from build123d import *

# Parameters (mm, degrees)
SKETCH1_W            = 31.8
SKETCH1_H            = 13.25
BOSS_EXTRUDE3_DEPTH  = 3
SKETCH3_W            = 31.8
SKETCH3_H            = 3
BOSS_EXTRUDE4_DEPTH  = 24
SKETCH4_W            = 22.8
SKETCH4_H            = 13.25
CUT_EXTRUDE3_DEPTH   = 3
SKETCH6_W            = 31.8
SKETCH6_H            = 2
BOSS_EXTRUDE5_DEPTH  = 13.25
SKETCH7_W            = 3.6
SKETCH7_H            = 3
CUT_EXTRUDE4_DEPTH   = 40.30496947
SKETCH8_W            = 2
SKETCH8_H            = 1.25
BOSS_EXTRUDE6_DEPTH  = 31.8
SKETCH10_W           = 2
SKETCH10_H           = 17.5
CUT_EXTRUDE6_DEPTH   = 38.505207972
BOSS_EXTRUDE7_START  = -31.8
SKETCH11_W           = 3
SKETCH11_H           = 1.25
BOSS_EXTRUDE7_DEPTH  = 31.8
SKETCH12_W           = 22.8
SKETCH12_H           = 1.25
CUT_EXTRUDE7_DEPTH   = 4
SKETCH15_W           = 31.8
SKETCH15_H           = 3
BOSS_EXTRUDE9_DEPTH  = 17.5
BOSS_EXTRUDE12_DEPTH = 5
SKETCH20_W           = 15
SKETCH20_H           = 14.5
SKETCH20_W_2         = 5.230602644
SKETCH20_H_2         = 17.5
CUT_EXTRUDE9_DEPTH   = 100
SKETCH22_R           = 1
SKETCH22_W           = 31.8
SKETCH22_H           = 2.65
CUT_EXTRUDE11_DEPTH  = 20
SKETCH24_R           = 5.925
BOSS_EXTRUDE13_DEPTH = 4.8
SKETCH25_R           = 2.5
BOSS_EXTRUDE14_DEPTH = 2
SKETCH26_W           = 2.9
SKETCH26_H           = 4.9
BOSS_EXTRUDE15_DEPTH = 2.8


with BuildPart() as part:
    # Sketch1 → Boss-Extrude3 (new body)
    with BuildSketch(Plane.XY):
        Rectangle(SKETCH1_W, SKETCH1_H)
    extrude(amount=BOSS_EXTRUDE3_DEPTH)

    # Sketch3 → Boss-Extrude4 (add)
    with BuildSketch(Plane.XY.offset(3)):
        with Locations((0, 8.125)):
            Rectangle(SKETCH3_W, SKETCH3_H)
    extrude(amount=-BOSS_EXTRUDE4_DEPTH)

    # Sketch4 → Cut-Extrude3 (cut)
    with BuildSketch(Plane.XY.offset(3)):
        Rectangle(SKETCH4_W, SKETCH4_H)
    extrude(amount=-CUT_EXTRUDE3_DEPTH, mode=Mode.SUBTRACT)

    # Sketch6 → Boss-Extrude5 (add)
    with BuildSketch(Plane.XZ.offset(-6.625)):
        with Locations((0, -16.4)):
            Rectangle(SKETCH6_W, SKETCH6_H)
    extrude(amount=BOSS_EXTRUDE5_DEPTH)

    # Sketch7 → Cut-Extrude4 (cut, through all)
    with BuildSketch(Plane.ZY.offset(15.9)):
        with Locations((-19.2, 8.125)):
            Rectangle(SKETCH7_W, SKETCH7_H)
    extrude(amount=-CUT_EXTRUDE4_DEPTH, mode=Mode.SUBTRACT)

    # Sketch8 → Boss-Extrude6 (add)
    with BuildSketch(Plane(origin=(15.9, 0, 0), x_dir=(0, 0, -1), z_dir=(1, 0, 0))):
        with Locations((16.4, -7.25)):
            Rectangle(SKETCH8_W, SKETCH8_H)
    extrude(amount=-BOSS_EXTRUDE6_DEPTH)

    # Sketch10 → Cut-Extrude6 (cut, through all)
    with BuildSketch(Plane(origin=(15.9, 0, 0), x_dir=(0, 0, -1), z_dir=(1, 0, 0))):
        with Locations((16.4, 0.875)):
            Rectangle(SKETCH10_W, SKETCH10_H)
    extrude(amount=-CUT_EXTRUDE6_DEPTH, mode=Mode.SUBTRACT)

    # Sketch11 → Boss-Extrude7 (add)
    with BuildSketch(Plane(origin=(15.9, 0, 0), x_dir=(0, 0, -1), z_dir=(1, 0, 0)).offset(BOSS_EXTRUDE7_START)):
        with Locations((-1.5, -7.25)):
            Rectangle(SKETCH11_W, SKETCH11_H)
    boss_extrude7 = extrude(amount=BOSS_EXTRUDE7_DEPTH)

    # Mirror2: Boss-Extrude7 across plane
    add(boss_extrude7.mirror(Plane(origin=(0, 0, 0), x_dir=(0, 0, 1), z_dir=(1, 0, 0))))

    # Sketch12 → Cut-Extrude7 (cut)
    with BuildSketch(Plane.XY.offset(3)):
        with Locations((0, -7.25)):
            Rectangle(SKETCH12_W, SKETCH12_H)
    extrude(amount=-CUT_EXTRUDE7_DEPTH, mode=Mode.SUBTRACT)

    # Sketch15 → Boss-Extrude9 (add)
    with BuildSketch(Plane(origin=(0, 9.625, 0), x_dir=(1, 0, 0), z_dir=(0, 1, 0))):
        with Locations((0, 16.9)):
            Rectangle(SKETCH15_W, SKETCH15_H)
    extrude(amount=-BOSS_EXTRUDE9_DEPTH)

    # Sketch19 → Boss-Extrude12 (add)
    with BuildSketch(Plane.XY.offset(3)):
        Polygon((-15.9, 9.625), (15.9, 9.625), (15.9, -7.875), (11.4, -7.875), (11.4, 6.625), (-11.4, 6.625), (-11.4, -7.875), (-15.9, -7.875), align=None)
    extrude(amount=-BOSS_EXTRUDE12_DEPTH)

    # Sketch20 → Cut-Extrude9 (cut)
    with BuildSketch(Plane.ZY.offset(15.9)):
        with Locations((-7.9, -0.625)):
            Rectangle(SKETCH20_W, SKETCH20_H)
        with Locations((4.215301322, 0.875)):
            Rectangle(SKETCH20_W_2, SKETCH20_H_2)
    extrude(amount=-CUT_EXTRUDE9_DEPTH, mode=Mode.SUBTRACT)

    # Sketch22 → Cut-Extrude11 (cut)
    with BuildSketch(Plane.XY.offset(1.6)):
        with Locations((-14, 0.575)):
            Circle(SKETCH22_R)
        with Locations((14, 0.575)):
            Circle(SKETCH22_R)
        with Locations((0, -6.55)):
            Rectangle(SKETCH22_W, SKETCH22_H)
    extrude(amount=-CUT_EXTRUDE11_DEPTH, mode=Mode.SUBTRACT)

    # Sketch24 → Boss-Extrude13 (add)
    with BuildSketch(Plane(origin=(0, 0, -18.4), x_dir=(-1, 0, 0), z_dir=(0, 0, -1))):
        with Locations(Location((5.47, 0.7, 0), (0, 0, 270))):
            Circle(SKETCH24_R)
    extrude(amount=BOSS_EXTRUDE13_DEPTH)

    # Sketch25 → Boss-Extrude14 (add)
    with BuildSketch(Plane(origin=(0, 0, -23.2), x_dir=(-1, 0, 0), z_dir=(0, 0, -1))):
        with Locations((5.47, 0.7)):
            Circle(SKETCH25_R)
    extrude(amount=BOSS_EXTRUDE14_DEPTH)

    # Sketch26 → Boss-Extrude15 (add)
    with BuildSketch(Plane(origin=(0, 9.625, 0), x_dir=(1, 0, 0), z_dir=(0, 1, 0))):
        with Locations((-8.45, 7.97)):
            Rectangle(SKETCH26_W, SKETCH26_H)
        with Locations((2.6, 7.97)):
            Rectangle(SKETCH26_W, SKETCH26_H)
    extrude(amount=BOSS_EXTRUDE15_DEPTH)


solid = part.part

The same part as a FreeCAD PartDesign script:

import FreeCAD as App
import Part
import Sketcher


def add_polygon(sketch, points):
    """Adds a closed chain of lines whose ends are joined by coincident constraints."""
    first, n = sketch.GeometryCount, len(points)
    for a, b in zip(points, points[1:] + points[:1]):
        sketch.addGeometry(Part.LineSegment(App.Vector(*a, 0), App.Vector(*b, 0)), False)
    for i in range(n):
        sketch.addConstraint(Sketcher.Constraint("Coincident", first + i, 2, first + (i + 1) % n, 1))

doc = App.newDocument("Part")
body = doc.addObject("PartDesign::Body", "Body")

sketch1 = body.newObject("Sketcher::SketchObject", "Sketch")
sketch1.AttachmentSupport = (doc.getObject("XY_Plane"), [""])
sketch1.MapMode = "FlatFace"
add_polygon(sketch1, [(-16, 7), (-16, -7), (16, -7), (16, 7)])
sketch1.addConstraint([
    Sketcher.Constraint("Vertical", 0),
    Sketcher.Constraint("Horizontal", 1),
    Sketcher.Constraint("Vertical", 2),
    Sketcher.Constraint("Horizontal", 3),
    Sketcher.Constraint("Symmetric", 0, 2, 2, 2, -1, 1),
    Sketcher.Constraint("DistanceX", 1, 1, 1, 2, 31.8),
    Sketcher.Constraint("DistanceY", 0, 2, 0, 1, 13.25),
])
pad1 = body.newObject("PartDesign::Pad", "Pad")
pad1.Profile = sketch1
pad1.Length = 3

sketch2 = body.newObject("Sketcher::SketchObject", "Sketch001")
sketch2.AttachmentSupport = (doc.getObject("XY_Plane"), [""])
sketch2.MapMode = "FlatFace"
sketch2.AttachmentOffset = App.Placement(App.Vector(0, 0, 3), App.Rotation())
add_polygon(sketch2, [(-15.9, 9.6), (-15.9, 6.6), (15.9, 6.6), (15.9, 9.6)])
sketch2.addConstraint([
    Sketcher.Constraint("Vertical", 0),
    Sketcher.Constraint("Horizontal", 1),
    Sketcher.Constraint("Vertical", 2),
    Sketcher.Constraint("Horizontal", 3),
    Sketcher.Constraint("DistanceY", 0, 2, 0, 1, 3.0),
    Sketcher.Constraint("DistanceX", 1, 1, 1, 2, 31.8),
    Sketcher.Constraint("DistanceX", 0, 2, -1, 1, 15.9),
    Sketcher.Constraint("DistanceY", -1, 1, 0, 2, 6.625),
])
pad2 = body.newObject("PartDesign::Pad", "Pad001")
pad2.Profile = sketch2
pad2.Length = 24
pad2.Reversed = True

sketch3 = body.newObject("Sketcher::SketchObject", "Sketch002")
sketch3.AttachmentSupport = (doc.getObject("XY_Plane"), [""])
sketch3.MapMode = "FlatFace"
sketch3.AttachmentOffset = App.Placement(App.Vector(0, 0, 3), App.Rotation())
add_polygon(sketch3, [(-11, 7), (-11, -7), (11, -7), (11, 7)])
sketch3.addConstraint([
    Sketcher.Constraint("Vertical", 0),
    Sketcher.Constraint("Horizontal", 1),
    Sketcher.Constraint("Vertical", 2),
    Sketcher.Constraint("Horizontal", 3),
    Sketcher.Constraint("Symmetric", 0, 2, 2, 2, -1, 1),
    Sketcher.Constraint("DistanceX", 1, 1, 1, 2, 22.8),
    Sketcher.Constraint("DistanceY", 0, 2, 0, 1, 13.25),
])
pocket1 = body.newObject("PartDesign::Pocket", "Pocket")
pocket1.Profile = sketch3
pocket1.Length = 3

sketch4 = body.newObject("Sketcher::SketchObject", "Sketch003")
sketch4.AttachmentSupport = (doc.getObject("XZ_Plane"), [""])
sketch4.MapMode = "FlatFace"
sketch4.AttachmentOffset = App.Placement(App.Vector(0, 0, -6.625), App.Rotation())
add_polygon(sketch4, [(-15.9, -15.4), (-15.9, -17.4), (15.9, -17.4), (15.9, -15.4)])
sketch4.addConstraint([
    Sketcher.Constraint("Vertical", 0),
    Sketcher.Constraint("Horizontal", 1),
    Sketcher.Constraint("Vertical", 2),
    Sketcher.Constraint("Horizontal", 3),
    Sketcher.Constraint("DistanceY", 0, 2, 0, 1, 2.0),
    Sketcher.Constraint("DistanceX", 1, 1, 1, 2, 31.8),
    Sketcher.Constraint("DistanceX", 0, 2, -1, 1, 15.9),
    Sketcher.Constraint("DistanceY", 0, 2, -1, 1, 17.4),
])
pad3 = body.newObject("PartDesign::Pad", "Pad002")
pad3.Profile = sketch4
pad3.Length = 13.25

sketch5 = body.newObject("Sketcher::SketchObject", "Sketch004")
sketch5.AttachmentSupport = (doc.getObject("YZ_Plane"), [""])
sketch5.MapMode = "FlatFace"
sketch5.AttachmentOffset = App.Placement(App.Vector(0, 0, -15.9), App.Rotation())
add_polygon(sketch5, [(9.6, -21), (6.6, -21), (6.6, -17.4), (9.6, -17.4)])
sketch5.addConstraint([
    Sketcher.Constraint("Horizontal", 0),
    Sketcher.Constraint("Vertical", 1),
    Sketcher.Constraint("Horizontal", 2),
    Sketcher.Constraint("Vertical", 3),
    Sketcher.Constraint("DistanceX", 0, 2, 0, 1, 3.0),
    Sketcher.Constraint("DistanceY", 1, 1, 1, 2, 3.6),
    Sketcher.Constraint("DistanceY", 0, 2, -1, 1, 21.0),
    Sketcher.Constraint("DistanceX", -1, 1, 0, 2, 6.625),
])
pocket2 = body.newObject("PartDesign::Pocket", "Pocket001")
pocket2.Profile = sketch5
pocket2.Type = "ThroughAll"
pocket2.Reversed = True

sketch6 = body.newObject("Sketcher::SketchObject", "Sketch005")
sketch6.AttachmentSupport = (doc.getObject("YZ_Plane"), [""])
sketch6.MapMode = "FlatFace"
sketch6.AttachmentOffset = App.Placement(App.Vector(0, 0, 15.9), App.Rotation())
add_polygon(sketch6, [(-6.6, -15.4), (-7.9, -15.4), (-7.9, -17.4), (-6.6, -17.4)])
sketch6.addConstraint([
    Sketcher.Constraint("Horizontal", 0),
    Sketcher.Constraint("Vertical", 1),
    Sketcher.Constraint("Horizontal", 2),
    Sketcher.Constraint("Vertical", 3),
    Sketcher.Constraint("DistanceY", 1, 2, 1, 1, 2.0),
    Sketcher.Constraint("DistanceX", 0, 2, 0, 1, 1.25),
    Sketcher.Constraint("DistanceY", 0, 2, -1, 1, 15.4),
    Sketcher.Constraint("DistanceX", 0, 2, -1, 1, 7.875),
])
pad4 = body.newObject("PartDesign::Pad", "Pad003")
pad4.Profile = sketch6
pad4.Length = 31.8
pad4.Reversed = True

sketch7 = body.newObject("Sketcher::SketchObject", "Sketch006")
sketch7.AttachmentSupport = (doc.getObject("YZ_Plane"), [""])
sketch7.MapMode = "FlatFace"
sketch7.AttachmentOffset = App.Placement(App.Vector(0, 0, 15.9), App.Rotation())
add_polygon(sketch7, [(9.6, -15.4), (-7.9, -15.4), (-7.9, -17.4), (9.6, -17.4)])
sketch7.addConstraint([
    Sketcher.Constraint("Horizontal", 0),
    Sketcher.Constraint("Vertical", 1),
    Sketcher.Constraint("Horizontal", 2),
    Sketcher.Constraint("Vertical", 3),
    Sketcher.Constraint("DistanceY", 1, 2, 1, 1, 2.0),
    Sketcher.Constraint("DistanceX", 0, 2, 0, 1, 17.5),
    Sketcher.Constraint("DistanceY", 0, 2, -1, 1, 15.4),
    Sketcher.Constraint("DistanceX", 0, 2, -1, 1, 7.875),
])
pocket3 = body.newObject("PartDesign::Pocket", "Pocket002")
pocket3.Profile = sketch7
pocket3.Type = "ThroughAll"

sketch8 = body.newObject("Sketcher::SketchObject", "Sketch007")
sketch8.AttachmentSupport = (doc.getObject("YZ_Plane"), [""])
sketch8.MapMode = "FlatFace"
sketch8.AttachmentOffset = App.Placement(App.Vector(0, 0, -15.9), App.Rotation())
add_polygon(sketch8, [(-6.6, 3), (-7.9, 3), (-7.9, 0), (-6.6, 0)])
sketch8.addConstraint([
    Sketcher.Constraint("Horizontal", 0),
    Sketcher.Constraint("Vertical", 1),
    Sketcher.Constraint("Horizontal", 2),
    Sketcher.Constraint("Vertical", 3),
    Sketcher.Constraint("PointOnObject", 1, 2, -1),
    Sketcher.Constraint("DistanceY", 1, 2, 1, 1, 3.0),
    Sketcher.Constraint("DistanceX", 0, 2, 0, 1, 1.25),
    Sketcher.Constraint("DistanceX", 0, 2, -1, 1, 7.875),
])
pad5 = body.newObject("PartDesign::Pad", "Pad004")
pad5.Profile = sketch8
pad5.Length = 31.8
doc.recompute()

mirrored = body.newObject("PartDesign::Mirrored", "Mirrored")
mirrored.Originals = [pad5]
mirrored.MirrorPlane = (doc.getObject("YZ_Plane"), [""])
body.Tip = mirrored

sketch9 = body.newObject("Sketcher::SketchObject", "Sketch008")
sketch9.AttachmentSupport = (doc.getObject("XY_Plane"), [""])
sketch9.MapMode = "FlatFace"
sketch9.AttachmentOffset = App.Placement(App.Vector(0, 0, 3), App.Rotation())
add_polygon(sketch9, [(-11.4, -6.6), (-11.4, -7.9), (11.4, -7.9), (11.4, -6.6)])
sketch9.addConstraint([
    Sketcher.Constraint("Vertical", 0),
    Sketcher.Constraint("Horizontal", 1),
    Sketcher.Constraint("Vertical", 2),
    Sketcher.Constraint("Horizontal", 3),
    Sketcher.Constraint("DistanceX", 1, 1, 1, 2, 22.8),
    Sketcher.Constraint("DistanceY", 0, 2, 0, 1, 1.25),
    Sketcher.Constraint("DistanceX", 0, 2, -1, 1, 11.4),
    Sketcher.Constraint("DistanceY", 0, 2, -1, 1, 7.875),
])
pocket4 = body.newObject("PartDesign::Pocket", "Pocket003")
pocket4.Profile = sketch9
pocket4.Length = 4

sketch10 = body.newObject("Sketcher::SketchObject", "Sketch009")
sketch10.AttachmentSupport = (doc.getObject("XZ_Plane"), [""])
sketch10.MapMode = "FlatFace"
sketch10.AttachmentOffset = App.Placement(App.Vector(0, 0, -9.625), App.Rotation())
add_polygon(sketch10, [(-15.9, -18.4), (-15.9, -15.4), (15.9, -15.4), (15.9, -18.4)])
sketch10.addConstraint([
    Sketcher.Constraint("Vertical", 0),
    Sketcher.Constraint("Horizontal", 1),
    Sketcher.Constraint("Vertical", 2),
    Sketcher.Constraint("Horizontal", 3),
    Sketcher.Constraint("DistanceY", 0, 1, 0, 2, 3.0),
    Sketcher.Constraint("DistanceX", 1, 1, 1, 2, 31.8),
    Sketcher.Constraint("DistanceX", 0, 2, -1, 1, 15.9),
    Sketcher.Constraint("DistanceY", 0, 2, -1, 1, 15.4),
])
pad6 = body.newObject("PartDesign::Pad", "Pad005")
pad6.Profile = sketch10
pad6.Length = 17.5

sketch11 = body.newObject("Sketcher::SketchObject", "Sketch010")
sketch11.AttachmentSupport = (doc.getObject("XY_Plane"), [""])
sketch11.MapMode = "FlatFace"
sketch11.AttachmentOffset = App.Placement(App.Vector(0, 0, 3), App.Rotation())
add_polygon(sketch11, [(15.9, 9.6), (-15.9, 9.6), (-15.9, -7.9), (-11.4, -7.9), (-11.4, 6.6), (11.4, 6.6), (11.4, -7.9), (15.9, -7.9)])
sketch11.addConstraint([
    Sketcher.Constraint("Horizontal", 0),
    Sketcher.Constraint("Vertical", 1),
    Sketcher.Constraint("Horizontal", 2),
    Sketcher.Constraint("Vertical", 3),
    Sketcher.Constraint("Horizontal", 4),
    Sketcher.Constraint("Vertical", 5),
    Sketcher.Constraint("Horizontal", 6),
    Sketcher.Constraint("Vertical", 7),
    Sketcher.Constraint("Symmetric", 2, 2, 5, 2, -2),
    Sketcher.Constraint("Equal", 2, 6),
    Sketcher.Constraint("DistanceX", 0, 2, 0, 1, 31.8),
    Sketcher.Constraint("DistanceX", 2, 1, 2, 2, 4.5),
    Sketcher.Constraint("DistanceY", 1, 2, 1, 1, 17.5),
    Sketcher.Constraint("DistanceY", 3, 1, 3, 2, 14.5),
    Sketcher.Constraint("DistanceY", -1, 1, 0, 2, 9.625),
])
pad7 = body.newObject("PartDesign::Pad", "Pad006")
pad7.Profile = sketch11
pad7.Length = 5
pad7.Reversed = True

sketch12 = body.newObject("Sketcher::SketchObject", "Sketch011")
sketch12.AttachmentSupport = (doc.getObject("YZ_Plane"), [""])
sketch12.MapMode = "FlatFace"
sketch12.AttachmentOffset = App.Placement(App.Vector(0, 0, -15.9), App.Rotation())
add_polygon(sketch12, [(7, -15), (-8, -15), (-8, 0), (7, 0)])
add_polygon(sketch12, [(10, 2), (-8, 2), (-8, 7), (10, 7)])
sketch12.addConstraint([
    Sketcher.Constraint("Horizontal", 0),
    Sketcher.Constraint("Vertical", 1),
    Sketcher.Constraint("Horizontal", 2),
    Sketcher.Constraint("Vertical", 3),
    Sketcher.Constraint("Horizontal", 4),
    Sketcher.Constraint("Vertical", 5),
    Sketcher.Constraint("Horizontal", 6),
    Sketcher.Constraint("Vertical", 7),
    Sketcher.Constraint("Vertical", 1, 2, 4, 2),
    Sketcher.Constraint("DistanceY", 1, 1, 1, 2, 15.0),
    Sketcher.Constraint("DistanceX", 0, 2, 0, 1, 14.5),
    Sketcher.Constraint("DistanceX", 4, 2, 4, 1, 17.5),
    Sketcher.Constraint("DistanceY", 1, 2, 4, 2, 2.0),
    Sketcher.Constraint("DistanceY", 0, 2, -1, 1, 15.4),
    Sketcher.Constraint("DistanceX", 0, 2, -1, 1, 7.875),
    Sketcher.Constraint("DistanceY", 5, 1, 5, 2, 5.230603),
])
pocket5 = body.newObject("PartDesign::Pocket", "Pocket004")
pocket5.Profile = sketch12
pocket5.Length = 100
pocket5.Reversed = True

sketch13 = body.newObject("Sketcher::SketchObject", "Sketch012")
sketch13.AttachmentSupport = (doc.getObject("XY_Plane"), [""])
sketch13.MapMode = "FlatFace"
sketch13.AttachmentOffset = App.Placement(App.Vector(0, 0, 1.6), App.Rotation())
sketch13.addGeometry(Part.Circle(App.Vector(-14, 0.6, 0), App.Vector(0, 0, 1), 1), False)
sketch13.addGeometry(Part.Circle(App.Vector(14, 0.6, 0), App.Vector(0, 0, 1), 1), False)
add_polygon(sketch13, [(-15.9, -5.2), (-15.9, -7.9), (15.9, -7.9), (15.9, -5.2)])
sketch13.addConstraint([
    Sketcher.Constraint("Vertical", 2),
    Sketcher.Constraint("Horizontal", 3),
    Sketcher.Constraint("Vertical", 4),
    Sketcher.Constraint("Horizontal", 5),
    Sketcher.Constraint("Equal", 0, 1),
    Sketcher.Constraint("Symmetric", 0, 3, 1, 3, -2),
    Sketcher.Constraint("Diameter", 0, 2.0),
    Sketcher.Constraint("DistanceX", 3, 1, 3, 2, 31.8),
    Sketcher.Constraint("DistanceX", 0, 3, -1, 1, 14.0),
    Sketcher.Constraint("DistanceY", 2, 2, 2, 1, 2.65),
    Sketcher.Constraint("DistanceX", 2, 2, -1, 1, 15.9),
    Sketcher.Constraint("DistanceY", 4, 2, 1, 3, 5.8),
    Sketcher.Constraint("DistanceY", -1, 1, 0, 3, 0.575),
])
pocket6 = body.newObject("PartDesign::Pocket", "Pocket005")
pocket6.Profile = sketch13
pocket6.Length = 20

sketch14 = body.newObject("Sketcher::SketchObject", "Sketch013")
sketch14.AttachmentSupport = (doc.getObject("XY_Plane"), [""])
sketch14.MapMode = "FlatFace"
sketch14.AttachmentOffset = App.Placement(App.Vector(0, 0, -18.4), App.Rotation())
sketch14.addGeometry(Part.Circle(App.Vector(-5, 1, 0), App.Vector(0, 0, 1), 6), False)
sketch14.addConstraint([
    Sketcher.Constraint("Diameter", 0, 11.85),
    Sketcher.Constraint("DistanceY", -1, 1, 0, 3, 0.7),
    Sketcher.Constraint("DistanceX", 0, 3, -1, 1, 5.47),
])
pad8 = body.newObject("PartDesign::Pad", "Pad007")
pad8.Profile = sketch14
pad8.Length = 4.8
pad8.Reversed = True

sketch15 = body.newObject("Sketcher::SketchObject", "Sketch014")
sketch15.AttachmentSupport = (doc.getObject("XY_Plane"), [""])
sketch15.MapMode = "FlatFace"
sketch15.AttachmentOffset = App.Placement(App.Vector(0, 0, -23.2), App.Rotation())
sketch15.addGeometry(Part.Circle(App.Vector(-5.5, 0.7, 0), App.Vector(0, 0, 1), 2.5), False)
sketch15.addConstraint([
    Sketcher.Constraint("Diameter", 0, 5.0),
    Sketcher.Constraint("DistanceY", -1, 1, 0, 3, 0.7),
    Sketcher.Constraint("DistanceX", 0, 3, -1, 1, 5.47),
])
pad9 = body.newObject("PartDesign::Pad", "Pad008")
pad9.Profile = sketch15
pad9.Length = 2
pad9.Reversed = True

sketch16 = body.newObject("Sketcher::SketchObject", "Sketch015")
sketch16.AttachmentSupport = (doc.getObject("XZ_Plane"), [""])
sketch16.MapMode = "FlatFace"
sketch16.AttachmentOffset = App.Placement(App.Vector(0, 0, -9.625), App.Rotation())
add_polygon(sketch16, [(-9.9, -10.4), (-9.9, -5.5), (-7, -5.5), (-7, -10.4)])
add_polygon(sketch16, [(1.1, -10.4), (1.1, -5.5), (4, -5.5), (4, -10.4)])
sketch16.addConstraint([
    Sketcher.Constraint("Vertical", 0),
    Sketcher.Constraint("Horizontal", 1),
    Sketcher.Constraint("Vertical", 2),
    Sketcher.Constraint("Horizontal", 3),
    Sketcher.Constraint("Vertical", 4),
    Sketcher.Constraint("Horizontal", 5),
    Sketcher.Constraint("Vertical", 6),
    Sketcher.Constraint("Horizontal", 7),
    Sketcher.Constraint("Horizontal", 1, 2, 4, 2),
    Sketcher.Constraint("Horizontal", 3, 2, 6, 2),
    Sketcher.Constraint("Equal", 3, 5),
    Sketcher.Constraint("DistanceX", 1, 1, 1, 2, 2.9),
    Sketcher.Constraint("DistanceY", 0, 1, 0, 2, 4.9),
    Sketcher.Constraint("DistanceX", 1, 2, -1, 1, 7.0),
    Sketcher.Constraint("DistanceY", 0, 2, -1, 1, 5.52),
    Sketcher.Constraint("DistanceX", -1, 1, 4, 2, 1.15),
])
pad10 = body.newObject("PartDesign::Pad", "Pad009")
pad10.Profile = sketch16
pad10.Length = 2.8
pad10.Reversed = True

doc.recompute()
